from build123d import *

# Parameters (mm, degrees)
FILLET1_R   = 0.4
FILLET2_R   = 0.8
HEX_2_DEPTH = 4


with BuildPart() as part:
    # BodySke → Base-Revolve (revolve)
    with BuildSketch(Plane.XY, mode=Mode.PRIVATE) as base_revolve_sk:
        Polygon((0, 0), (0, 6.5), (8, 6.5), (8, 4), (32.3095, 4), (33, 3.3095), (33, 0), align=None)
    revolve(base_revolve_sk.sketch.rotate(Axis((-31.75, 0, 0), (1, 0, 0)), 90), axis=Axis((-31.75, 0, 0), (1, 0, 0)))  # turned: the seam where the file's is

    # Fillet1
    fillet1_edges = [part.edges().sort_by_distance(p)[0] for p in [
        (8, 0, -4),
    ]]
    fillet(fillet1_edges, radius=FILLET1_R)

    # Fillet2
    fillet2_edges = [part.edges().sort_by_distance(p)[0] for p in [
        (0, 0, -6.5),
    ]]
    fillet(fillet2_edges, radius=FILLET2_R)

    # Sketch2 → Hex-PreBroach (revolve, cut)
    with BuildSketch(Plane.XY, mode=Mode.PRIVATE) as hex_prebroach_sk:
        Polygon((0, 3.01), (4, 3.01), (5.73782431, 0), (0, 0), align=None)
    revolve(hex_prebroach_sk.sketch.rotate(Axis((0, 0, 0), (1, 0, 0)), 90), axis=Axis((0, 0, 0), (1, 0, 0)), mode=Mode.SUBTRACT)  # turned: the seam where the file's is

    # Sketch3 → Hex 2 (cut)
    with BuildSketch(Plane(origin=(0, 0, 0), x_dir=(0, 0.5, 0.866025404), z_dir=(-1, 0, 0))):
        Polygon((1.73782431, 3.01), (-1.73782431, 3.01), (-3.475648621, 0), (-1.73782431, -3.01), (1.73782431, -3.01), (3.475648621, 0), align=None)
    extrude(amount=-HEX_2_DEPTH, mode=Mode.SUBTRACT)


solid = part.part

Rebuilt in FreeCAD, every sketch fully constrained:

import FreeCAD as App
import Part
import Sketcher
from FreeCAD import Vector
Q = App.Units.Quantity


def edges_at(feature, points):
    """Names of the edges that pass closest to the given points."""
    edges = feature.Shape.Edges
    near = lambda p: min(range(len(edges)), key=lambda i: edges[i].distToShape(Part.Vertex(*p))[0])
    return sorted({f"Edge{near(p) + 1}" for p in points})

doc = App.newDocument("Part")
params = doc.addObject("Spreadsheet::Sheet", "Params")
for row, (alias, value) in enumerate([
    ("sketch1_width", "33 mm"),
    ("sketch1_width2", "8 mm"),
    ("sketch1_height", "6.5 mm"),
    ("sketch1_height2", "2.5 mm"),
    ("revolution_angle", "360 deg"),
    ("fillet_radius", "0.4 mm"),
    ("fillet2_radius", "0.8 mm"),
    ("sketch2_width", "4 mm"),
    ("sketch2_height", "3.01 mm"),
    ("groove_angle", "360 deg"),
    ("pocket1_length", "4 mm"),
], start=1):
    params.set(f"A{row}", alias)
    params.set(f"B{row}", "=" + value)
    params.setAlias(f"B{row}", alias)

body = doc.addObject("PartDesign::Body", "Body")

sketch1 = body.newObject("Sketcher::SketchObject", "Sketch")
sketch1.AttachmentSupport = (doc.getObject("XY_Plane"), [""])
sketch1.MapMode = "FlatFace"
sketch1.addGeometry([
    Part.LineSegment(Vector(0, 6.5, 0), Vector(0, 0, 0)),
    Part.LineSegment(Vector(0, 0, 0), Vector(33, 0, 0)),
    Part.LineSegment(Vector(33, 0, 0), Vector(33, 3.3, 0)),
    Part.LineSegment(Vector(33, 3.3, 0), Vector(32.3, 4, 0)),
    Part.LineSegment(Vector(32.3, 4, 0), Vector(8, 4, 0)),
    Part.LineSegment(Vector(8, 4, 0), Vector(8, 6.5, 0)),
    Part.LineSegment(Vector(8, 6.5, 0), Vector(0, 6.5, 0)),
], False)
sketch1.addConstraint([
    Sketcher.Constraint("Coincident", 0, 2, 1, 1),
    Sketcher.Constraint("Coincident", 1, 2, 2, 1),
    Sketcher.Constraint("Coincident", 2, 2, 3, 1),
    Sketcher.Constraint("Coincident", 3, 2, 4, 1),
    Sketcher.Constraint("Coincident", 4, 2, 5, 1),
    Sketcher.Constraint("Coincident", 5, 2, 6, 1),
    Sketcher.Constraint("Coincident", 6, 2, 0, 1),
    Sketcher.Constraint("Vertical", 0),
    Sketcher.Constraint("Horizontal", 1),
    Sketcher.Constraint("Vertical", 2),
    Sketcher.Constraint("Horizontal", 4),
    Sketcher.Constraint("Vertical", 5),
    Sketcher.Constraint("Horizontal", 6),
    Sketcher.Constraint("Coincident", 0, 2, -1, 1),
    Sketcher.Constraint("DistanceX", 1, 1, 1, 2, Q("33 mm")),
    Sketcher.Constraint("DistanceX", 6, 2, 6, 1, Q("8 mm")),
    Sketcher.Constraint("Angle", 3, Q("135 deg")),
    Sketcher.Constraint("DistanceY", 0, 2, 0, 1, Q("6.5 mm")),
    Sketcher.Constraint("DistanceY", 5, 1, 5, 2, Q("2.5 mm")),
    Sketcher.Constraint("DistanceX", 4, 2, 4, 1, Q("24.3095 mm")),
])
sketch1.setExpression("Constraints[14]", "Params.sketch1_width")
sketch1.setExpression("Constraints[15]", "Params.sketch1_width2")
sketch1.setExpression("Constraints[17]", "Params.sketch1_height")
sketch1.setExpression("Constraints[18]", "Params.sketch1_height2")
revolution = body.newObject("PartDesign::Revolution", "Revolution")
revolution.Profile = sketch1
revolution.ReferenceAxis = (sketch1, ["H_Axis"])
revolution.setExpression("Angle", "Params.revolution_angle")
doc.recompute()

fillet = body.newObject("PartDesign::Fillet", "Fillet")
fillet.Base = (revolution, edges_at(revolution, [(8, 0, -4)]))
fillet.setExpression("Radius", "Params.fillet_radius")
doc.recompute()

fillet2 = body.newObject("PartDesign::Fillet", "Fillet001")
fillet2.Base = (fillet, edges_at(fillet, [(0, 0, -6.5)]))
fillet2.setExpression("Radius", "Params.fillet2_radius")

sketch2 = body.newObject("Sketcher::SketchObject", "Sketch001")
sketch2.AttachmentSupport = (doc.getObject("XY_Plane"), [""])
sketch2.MapMode = "FlatFace"
sketch2.addGeometry([
    Part.LineSegment(Vector(4, 3, 0), Vector(0, 3, 0)),
    Part.LineSegment(Vector(0, 3, 0), Vector(0, 0, 0)),
    Part.LineSegment(Vector(0, 0, 0), Vector(5.7, 0, 0)),
    Part.LineSegment(Vector(5.7, 0, 0), Vector(4, 3, 0)),
], False)
sketch2.addConstraint([
    Sketcher.Constraint("Coincident", 0, 2, 1, 1),
    Sketcher.Constraint("Coincident", 1, 2, 2, 1),
    Sketcher.Constraint("Coincident", 2, 2, 3, 1),
    Sketcher.Constraint("Coincident", 3, 2, 0, 1),
    Sketcher.Constraint("Horizontal", 0),
    Sketcher.Constraint("Vertical", 1),
    Sketcher.Constraint("Horizontal", 2),
    Sketcher.Constraint("Coincident", 1, 2, -1, 1),
    Sketcher.Constraint("DistanceX", 0, 2, 0, 1, Q("4 mm")),
    Sketcher.Constraint("Angle", 3, Q("120 deg")),
    Sketcher.Constraint("DistanceY", 1, 2, 1, 1, Q("3.01 mm")),
])
sketch2.setExpression("Constraints[8]", "Params.sketch2_width")
sketch2.setExpression("Constraints[10]", "Params.sketch2_height")
groove = body.newObject("PartDesign::Groove", "Groove")
groove.Profile = sketch2
groove.ReferenceAxis = (sketch2, ["H_Axis"])
groove.setExpression("Angle", "Params.groove_angle")

sketch3 = body.newObject("Sketcher::SketchObject", "Sketch002")
sketch3.AttachmentSupport = (doc.getObject("YZ_Plane"), [""])
sketch3.MapMode = "FlatFace"
sketch3.addGeometry([
    Part.LineSegment(Vector(3.5, 0, 0), Vector(1.7, -3, 0)),
    Part.LineSegment(Vector(1.7, -3, 0), Vector(-1.7, -3, 0)),
    Part.LineSegment(Vector(-1.7, -3, 0), Vector(-3.5, 0, 0)),
    Part.LineSegment(Vector(-3.5, 0, 0), Vector(-1.7, 3, 0)),
    Part.LineSegment(Vector(-1.7, 3, 0), Vector(1.7, 3, 0)),
    Part.LineSegment(Vector(1.7, 3, 0), Vector(3.5, 0, 0)),
], False)
sketch3.addConstraint([
    Sketcher.Constraint("Coincident", 0, 2, 1, 1),
    Sketcher.Constraint("Coincident", 1, 2, 2, 1),
    Sketcher.Constraint("Coincident", 2, 2, 3, 1),
    Sketcher.Constraint("Coincident", 3, 2, 4, 1),
    Sketcher.Constraint("Coincident", 4, 2, 5, 1),
    Sketcher.Constraint("Coincident", 5, 2, 0, 1),
    Sketcher.Constraint("Horizontal", 1),
    Sketcher.Constraint("Horizontal", 4),
    Sketcher.Constraint("Symmetric", 0, 2, 3, 2, -1, 1),
    Sketcher.Constraint("Symmetric", 2, 2, 5, 2, -1, 1),
    Sketcher.Constraint("PointOnObject", 2, 2, -1),
    Sketcher.Constraint("Parallel", 2, 5),
    Sketcher.Constraint("Vertical", 1, 2, 3, 2),
    Sketcher.Constraint("Angle", 0, Q("-120 deg")),
    Sketcher.Constraint("DistanceY", 0, 2, -1, 1, Q("3.01 mm")),
    Sketcher.Constraint("DistanceX", 1, 2, 1, 1, Q("3.475649 mm")),
])
pocket1 = body.newObject("PartDesign::Pocket", "Pocket")
pocket1.Profile = sketch3
pocket1.setExpression("Length", "Params.pocket1_length")
pocket1.Reversed = True

doc.recompute()
